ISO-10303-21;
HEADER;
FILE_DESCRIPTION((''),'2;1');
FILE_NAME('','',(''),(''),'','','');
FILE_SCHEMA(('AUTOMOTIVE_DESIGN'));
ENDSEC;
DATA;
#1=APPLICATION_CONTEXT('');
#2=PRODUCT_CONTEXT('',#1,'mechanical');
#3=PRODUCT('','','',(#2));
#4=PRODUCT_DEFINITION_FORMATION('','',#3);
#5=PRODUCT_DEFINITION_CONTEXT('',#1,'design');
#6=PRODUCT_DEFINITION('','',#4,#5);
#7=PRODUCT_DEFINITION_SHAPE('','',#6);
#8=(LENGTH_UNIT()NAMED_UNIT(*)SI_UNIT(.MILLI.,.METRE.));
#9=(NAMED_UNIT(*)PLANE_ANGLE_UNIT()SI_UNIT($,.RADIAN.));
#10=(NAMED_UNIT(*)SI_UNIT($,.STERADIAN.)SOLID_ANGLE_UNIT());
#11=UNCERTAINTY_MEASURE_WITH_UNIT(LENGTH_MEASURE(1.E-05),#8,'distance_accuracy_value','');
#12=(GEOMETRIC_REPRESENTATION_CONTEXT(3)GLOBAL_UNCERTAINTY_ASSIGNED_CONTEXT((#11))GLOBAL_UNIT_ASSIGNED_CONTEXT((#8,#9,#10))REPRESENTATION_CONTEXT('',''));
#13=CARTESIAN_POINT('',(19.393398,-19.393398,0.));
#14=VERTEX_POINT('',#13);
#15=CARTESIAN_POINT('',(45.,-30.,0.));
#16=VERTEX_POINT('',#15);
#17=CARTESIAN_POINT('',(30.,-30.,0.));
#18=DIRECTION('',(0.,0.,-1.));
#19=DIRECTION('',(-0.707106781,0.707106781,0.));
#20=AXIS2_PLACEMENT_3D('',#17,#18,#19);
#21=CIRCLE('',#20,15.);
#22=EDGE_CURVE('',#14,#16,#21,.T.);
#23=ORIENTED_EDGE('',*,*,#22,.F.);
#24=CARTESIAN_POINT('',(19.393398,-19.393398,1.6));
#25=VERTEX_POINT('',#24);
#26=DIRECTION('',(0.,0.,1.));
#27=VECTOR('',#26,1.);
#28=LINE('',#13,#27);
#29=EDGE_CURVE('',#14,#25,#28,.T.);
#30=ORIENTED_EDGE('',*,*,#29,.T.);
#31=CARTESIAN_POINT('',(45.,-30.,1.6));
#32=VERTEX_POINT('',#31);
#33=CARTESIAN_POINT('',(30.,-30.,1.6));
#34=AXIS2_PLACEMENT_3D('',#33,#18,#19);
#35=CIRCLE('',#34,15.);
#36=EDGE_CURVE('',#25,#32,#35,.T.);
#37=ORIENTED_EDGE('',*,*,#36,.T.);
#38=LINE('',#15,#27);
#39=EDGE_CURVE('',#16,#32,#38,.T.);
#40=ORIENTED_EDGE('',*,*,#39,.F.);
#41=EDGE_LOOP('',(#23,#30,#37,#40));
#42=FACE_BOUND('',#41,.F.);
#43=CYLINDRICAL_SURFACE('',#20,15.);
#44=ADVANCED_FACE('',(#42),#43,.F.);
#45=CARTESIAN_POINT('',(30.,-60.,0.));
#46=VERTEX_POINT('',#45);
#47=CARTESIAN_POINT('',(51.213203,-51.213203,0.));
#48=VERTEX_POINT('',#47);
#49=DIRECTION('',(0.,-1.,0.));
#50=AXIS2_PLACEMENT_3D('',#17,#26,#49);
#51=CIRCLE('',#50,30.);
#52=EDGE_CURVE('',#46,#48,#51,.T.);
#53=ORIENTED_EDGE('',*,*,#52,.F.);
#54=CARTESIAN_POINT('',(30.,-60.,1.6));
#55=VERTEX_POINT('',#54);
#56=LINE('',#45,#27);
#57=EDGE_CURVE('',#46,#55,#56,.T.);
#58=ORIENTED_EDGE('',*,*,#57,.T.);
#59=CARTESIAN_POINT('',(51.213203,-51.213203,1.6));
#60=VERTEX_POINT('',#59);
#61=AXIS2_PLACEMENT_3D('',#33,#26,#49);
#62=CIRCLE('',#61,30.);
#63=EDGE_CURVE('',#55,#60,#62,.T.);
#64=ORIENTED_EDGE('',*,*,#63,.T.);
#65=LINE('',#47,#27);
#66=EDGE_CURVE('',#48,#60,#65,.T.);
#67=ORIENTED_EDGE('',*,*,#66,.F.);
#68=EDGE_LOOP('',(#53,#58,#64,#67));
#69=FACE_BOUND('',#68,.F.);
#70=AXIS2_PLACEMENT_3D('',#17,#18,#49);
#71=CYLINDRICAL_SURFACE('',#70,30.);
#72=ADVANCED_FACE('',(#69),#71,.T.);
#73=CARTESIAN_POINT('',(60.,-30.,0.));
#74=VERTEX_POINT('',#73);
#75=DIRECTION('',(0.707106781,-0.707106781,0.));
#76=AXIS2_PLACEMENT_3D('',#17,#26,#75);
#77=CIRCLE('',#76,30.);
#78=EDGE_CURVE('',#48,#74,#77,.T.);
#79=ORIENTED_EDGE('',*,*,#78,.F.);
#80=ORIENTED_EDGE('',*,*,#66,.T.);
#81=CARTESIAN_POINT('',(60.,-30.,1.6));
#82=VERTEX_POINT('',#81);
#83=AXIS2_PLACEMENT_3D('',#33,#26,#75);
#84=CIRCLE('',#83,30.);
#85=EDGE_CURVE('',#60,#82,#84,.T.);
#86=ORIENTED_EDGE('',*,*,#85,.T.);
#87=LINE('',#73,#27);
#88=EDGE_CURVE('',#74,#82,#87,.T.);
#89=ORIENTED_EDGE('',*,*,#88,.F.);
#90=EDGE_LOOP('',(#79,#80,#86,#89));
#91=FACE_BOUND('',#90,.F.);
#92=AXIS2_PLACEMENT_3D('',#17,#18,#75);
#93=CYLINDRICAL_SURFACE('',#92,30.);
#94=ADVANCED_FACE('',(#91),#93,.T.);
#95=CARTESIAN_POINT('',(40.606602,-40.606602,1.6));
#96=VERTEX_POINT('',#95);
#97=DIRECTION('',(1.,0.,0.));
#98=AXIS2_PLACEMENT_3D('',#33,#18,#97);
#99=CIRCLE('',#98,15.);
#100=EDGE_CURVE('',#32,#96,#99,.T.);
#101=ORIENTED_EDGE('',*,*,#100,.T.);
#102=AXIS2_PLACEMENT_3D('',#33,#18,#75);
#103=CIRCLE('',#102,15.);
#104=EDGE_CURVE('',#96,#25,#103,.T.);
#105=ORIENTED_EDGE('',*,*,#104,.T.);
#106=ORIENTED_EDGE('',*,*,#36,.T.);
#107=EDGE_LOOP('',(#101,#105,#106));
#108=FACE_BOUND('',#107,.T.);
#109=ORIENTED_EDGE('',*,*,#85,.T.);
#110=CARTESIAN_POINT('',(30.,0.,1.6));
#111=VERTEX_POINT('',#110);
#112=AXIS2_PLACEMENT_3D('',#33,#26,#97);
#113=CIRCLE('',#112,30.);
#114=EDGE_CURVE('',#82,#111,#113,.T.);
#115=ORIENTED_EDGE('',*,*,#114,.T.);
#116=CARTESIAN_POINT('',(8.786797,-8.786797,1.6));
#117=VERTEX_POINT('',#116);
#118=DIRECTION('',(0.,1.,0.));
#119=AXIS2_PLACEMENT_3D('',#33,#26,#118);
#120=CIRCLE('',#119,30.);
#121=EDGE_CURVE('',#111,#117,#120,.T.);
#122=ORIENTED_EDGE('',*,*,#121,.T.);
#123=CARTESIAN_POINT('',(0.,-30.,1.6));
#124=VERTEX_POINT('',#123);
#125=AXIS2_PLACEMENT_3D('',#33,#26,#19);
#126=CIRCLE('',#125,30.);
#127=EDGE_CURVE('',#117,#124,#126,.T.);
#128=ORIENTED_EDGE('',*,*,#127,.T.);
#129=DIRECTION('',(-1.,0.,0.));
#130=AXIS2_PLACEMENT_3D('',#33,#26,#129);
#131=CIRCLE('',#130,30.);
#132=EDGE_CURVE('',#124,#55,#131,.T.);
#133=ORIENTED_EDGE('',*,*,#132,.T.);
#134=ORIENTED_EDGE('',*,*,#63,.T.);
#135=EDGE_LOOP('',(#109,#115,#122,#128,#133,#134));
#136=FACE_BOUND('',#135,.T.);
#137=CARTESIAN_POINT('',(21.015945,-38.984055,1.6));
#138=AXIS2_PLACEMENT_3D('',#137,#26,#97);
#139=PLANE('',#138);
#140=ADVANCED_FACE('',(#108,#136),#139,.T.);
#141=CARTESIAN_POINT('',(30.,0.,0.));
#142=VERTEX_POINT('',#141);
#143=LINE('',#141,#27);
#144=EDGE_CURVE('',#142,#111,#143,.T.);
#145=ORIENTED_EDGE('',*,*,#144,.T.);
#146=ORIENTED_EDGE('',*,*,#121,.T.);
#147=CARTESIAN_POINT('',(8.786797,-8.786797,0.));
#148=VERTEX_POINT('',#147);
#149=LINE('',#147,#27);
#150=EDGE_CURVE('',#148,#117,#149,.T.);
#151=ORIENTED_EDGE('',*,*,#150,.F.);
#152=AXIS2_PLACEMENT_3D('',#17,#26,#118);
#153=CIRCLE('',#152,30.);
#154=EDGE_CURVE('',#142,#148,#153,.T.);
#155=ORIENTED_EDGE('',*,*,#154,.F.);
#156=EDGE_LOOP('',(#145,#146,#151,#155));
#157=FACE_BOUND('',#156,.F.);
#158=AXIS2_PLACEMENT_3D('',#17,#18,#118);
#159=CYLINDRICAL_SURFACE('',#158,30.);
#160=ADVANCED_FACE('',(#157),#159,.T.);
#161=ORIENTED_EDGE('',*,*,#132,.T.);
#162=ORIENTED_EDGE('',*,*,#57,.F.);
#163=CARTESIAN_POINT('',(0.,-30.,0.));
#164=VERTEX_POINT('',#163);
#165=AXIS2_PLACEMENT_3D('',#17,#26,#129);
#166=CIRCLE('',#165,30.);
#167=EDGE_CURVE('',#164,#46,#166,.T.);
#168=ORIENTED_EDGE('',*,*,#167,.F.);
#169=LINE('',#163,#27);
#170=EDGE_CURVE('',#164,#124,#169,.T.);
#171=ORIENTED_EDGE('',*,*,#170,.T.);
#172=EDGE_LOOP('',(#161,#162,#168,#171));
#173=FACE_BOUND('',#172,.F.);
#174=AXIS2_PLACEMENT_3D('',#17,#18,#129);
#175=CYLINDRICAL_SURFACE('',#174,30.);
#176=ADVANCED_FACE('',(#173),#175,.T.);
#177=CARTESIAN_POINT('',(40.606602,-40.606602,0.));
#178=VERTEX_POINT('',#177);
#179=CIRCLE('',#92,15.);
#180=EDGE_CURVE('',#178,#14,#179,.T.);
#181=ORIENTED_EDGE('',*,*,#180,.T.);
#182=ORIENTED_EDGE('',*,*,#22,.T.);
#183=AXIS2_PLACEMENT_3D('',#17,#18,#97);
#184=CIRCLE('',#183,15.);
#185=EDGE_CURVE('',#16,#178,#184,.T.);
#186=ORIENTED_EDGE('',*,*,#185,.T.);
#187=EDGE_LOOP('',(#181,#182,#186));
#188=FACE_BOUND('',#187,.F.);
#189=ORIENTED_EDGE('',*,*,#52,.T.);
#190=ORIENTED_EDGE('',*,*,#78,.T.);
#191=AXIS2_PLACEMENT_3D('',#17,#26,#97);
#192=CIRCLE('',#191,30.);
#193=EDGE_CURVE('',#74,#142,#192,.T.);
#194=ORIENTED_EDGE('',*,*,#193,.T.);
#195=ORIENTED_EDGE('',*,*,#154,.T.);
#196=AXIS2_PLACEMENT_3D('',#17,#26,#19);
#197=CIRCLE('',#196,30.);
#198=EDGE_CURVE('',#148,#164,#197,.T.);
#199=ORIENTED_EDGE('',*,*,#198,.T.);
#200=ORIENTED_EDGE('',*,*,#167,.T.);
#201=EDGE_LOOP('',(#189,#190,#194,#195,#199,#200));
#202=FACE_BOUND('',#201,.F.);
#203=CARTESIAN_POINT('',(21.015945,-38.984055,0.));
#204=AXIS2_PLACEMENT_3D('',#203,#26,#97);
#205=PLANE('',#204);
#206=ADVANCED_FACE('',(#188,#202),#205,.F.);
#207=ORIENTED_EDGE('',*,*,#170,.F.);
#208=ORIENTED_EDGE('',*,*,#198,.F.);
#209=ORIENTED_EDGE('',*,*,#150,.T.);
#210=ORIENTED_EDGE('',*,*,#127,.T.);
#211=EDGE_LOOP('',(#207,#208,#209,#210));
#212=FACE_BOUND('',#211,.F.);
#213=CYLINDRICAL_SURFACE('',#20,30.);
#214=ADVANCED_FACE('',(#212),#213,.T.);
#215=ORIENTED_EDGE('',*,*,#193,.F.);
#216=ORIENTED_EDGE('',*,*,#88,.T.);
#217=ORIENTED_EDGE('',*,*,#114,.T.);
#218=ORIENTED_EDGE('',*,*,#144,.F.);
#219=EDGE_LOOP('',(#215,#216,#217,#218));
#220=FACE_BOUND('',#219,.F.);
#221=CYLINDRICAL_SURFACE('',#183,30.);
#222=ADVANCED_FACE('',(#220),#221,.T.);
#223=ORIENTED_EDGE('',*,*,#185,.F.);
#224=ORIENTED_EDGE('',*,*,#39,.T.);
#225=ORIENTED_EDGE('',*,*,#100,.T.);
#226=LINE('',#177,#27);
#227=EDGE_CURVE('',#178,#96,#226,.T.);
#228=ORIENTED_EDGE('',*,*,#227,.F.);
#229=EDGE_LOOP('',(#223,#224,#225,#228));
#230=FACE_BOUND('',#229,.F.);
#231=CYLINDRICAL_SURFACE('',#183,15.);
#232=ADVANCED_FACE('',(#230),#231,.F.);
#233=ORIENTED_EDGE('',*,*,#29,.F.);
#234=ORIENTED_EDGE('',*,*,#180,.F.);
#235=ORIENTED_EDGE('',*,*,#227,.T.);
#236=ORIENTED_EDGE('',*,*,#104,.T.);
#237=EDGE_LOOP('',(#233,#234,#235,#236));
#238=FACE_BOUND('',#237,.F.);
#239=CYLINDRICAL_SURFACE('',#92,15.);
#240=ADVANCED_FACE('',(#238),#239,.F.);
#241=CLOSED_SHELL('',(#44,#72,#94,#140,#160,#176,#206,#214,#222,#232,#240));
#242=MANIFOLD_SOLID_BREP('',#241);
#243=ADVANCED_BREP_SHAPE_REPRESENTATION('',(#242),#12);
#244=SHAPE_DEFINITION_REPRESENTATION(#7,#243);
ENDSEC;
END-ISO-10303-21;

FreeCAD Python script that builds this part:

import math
import FreeCAD as App
import Part
import Sketcher

doc = App.newDocument("Part")
body = doc.addObject("PartDesign::Body", "Body")

# Sketch on XY plane
sketch1 = body.newObject("Sketcher::SketchObject", "Sketch")
sketch1.AttachmentSupport = (doc.getObject("XY_Plane"), [""])
sketch1.MapMode = "FlatFace"
sketch1.addGeometry([
    Part.ArcOfCircle(Part.Circle(App.Vector(30, -30, 0), App.Vector(0, 0, 1), 30), math.radians(135), math.radians(180)),  # 0
    Part.ArcOfCircle(Part.Circle(App.Vector(30, -30, 0), App.Vector(0, 0, 1), 30), math.radians(180), math.radians(270)),  # 1
    Part.ArcOfCircle(Part.Circle(App.Vector(30, -30, 0), App.Vector(0, 0, 1), 30), math.radians(-90), math.radians(-45)),  # 2
    Part.ArcOfCircle(Part.Circle(App.Vector(30, -30, 0), App.Vector(0, 0, 1), 30), math.radians(-45), math.radians(0)),  # 3
    Part.ArcOfCircle(Part.Circle(App.Vector(30, -30, 0), App.Vector(0, 0, 1), 30), math.radians(0), math.radians(90)),  # 4
    Part.ArcOfCircle(Part.Circle(App.Vector(30, -30, 0), App.Vector(0, 0, 1), 30), math.radians(90), math.radians(135)),  # 5
    Part.ArcOfCircle(Part.Circle(App.Vector(30, -30, 0), App.Vector(0, 0, 1), 15), math.radians(135), math.radians(315)),  # 6
    Part.ArcOfCircle(Part.Circle(App.Vector(30, -30, 0), App.Vector(0, 0, 1), 15), math.radians(0), math.radians(135)),  # 7
    Part.ArcOfCircle(Part.Circle(App.Vector(30, -30, 0), App.Vector(0, 0, 1), 15), math.radians(-45), math.radians(0)),  # 8
], False)
sketch1.addConstraint([
    Sketcher.Constraint("Tangent", 0, 2, 1, 1),
    Sketcher.Constraint("Tangent", 1, 2, 2, 1),
    Sketcher.Constraint("Tangent", 2, 2, 3, 1),
    Sketcher.Constraint("Tangent", 3, 2, 4, 1),
    Sketcher.Constraint("Tangent", 4, 2, 5, 1),
    Sketcher.Constraint("Tangent", 5, 2, 0, 1),
    Sketcher.Constraint("Tangent", 6, 1, 7, 2),
    Sketcher.Constraint("Tangent", 7, 1, 8, 2),
    Sketcher.Constraint("Tangent", 8, 1, 6, 2),
    Sketcher.Constraint("Coincident", 2, 3, 0, 3),
    Sketcher.Constraint("Coincident", 6, 3, 0, 3),
    Sketcher.Constraint("Equal", 2, 3),
    Sketcher.Constraint("PointOnObject", 0, 2, -2),
    Sketcher.Constraint("PointOnObject", 4, 2, -1),
    Sketcher.Constraint("Horizontal", 8, 3, 0, 2),
    Sketcher.Constraint("Horizontal", 0, 2, 3, 2),
    Sketcher.Constraint("Horizontal", 3, 2, 7, 1),
    Sketcher.Constraint("Vertical", 8, 3, 1, 2),
    Sketcher.Constraint("Vertical", 1, 2, 4, 2),
    Sketcher.Constraint("Radius", 0, 30.0),
    Sketcher.Constraint("Radius", 6, 15.0),
    Sketcher.Constraint("DistanceX", -1, 1, 6, 1, 19.393398),
    Sketcher.Constraint("DistanceX", -1, 1, 8, 1, 40.606602),
    Sketcher.Constraint("DistanceX", 5, 2, 6, 1, 10.606602),
    Sketcher.Constraint("DistanceX", -1, 1, 2, 2, 51.213203),
])
pad1 = body.newObject("PartDesign::Pad", "Pad")
pad1.Profile = sketch1
pad1.Length = 1.6

doc.recompute()
